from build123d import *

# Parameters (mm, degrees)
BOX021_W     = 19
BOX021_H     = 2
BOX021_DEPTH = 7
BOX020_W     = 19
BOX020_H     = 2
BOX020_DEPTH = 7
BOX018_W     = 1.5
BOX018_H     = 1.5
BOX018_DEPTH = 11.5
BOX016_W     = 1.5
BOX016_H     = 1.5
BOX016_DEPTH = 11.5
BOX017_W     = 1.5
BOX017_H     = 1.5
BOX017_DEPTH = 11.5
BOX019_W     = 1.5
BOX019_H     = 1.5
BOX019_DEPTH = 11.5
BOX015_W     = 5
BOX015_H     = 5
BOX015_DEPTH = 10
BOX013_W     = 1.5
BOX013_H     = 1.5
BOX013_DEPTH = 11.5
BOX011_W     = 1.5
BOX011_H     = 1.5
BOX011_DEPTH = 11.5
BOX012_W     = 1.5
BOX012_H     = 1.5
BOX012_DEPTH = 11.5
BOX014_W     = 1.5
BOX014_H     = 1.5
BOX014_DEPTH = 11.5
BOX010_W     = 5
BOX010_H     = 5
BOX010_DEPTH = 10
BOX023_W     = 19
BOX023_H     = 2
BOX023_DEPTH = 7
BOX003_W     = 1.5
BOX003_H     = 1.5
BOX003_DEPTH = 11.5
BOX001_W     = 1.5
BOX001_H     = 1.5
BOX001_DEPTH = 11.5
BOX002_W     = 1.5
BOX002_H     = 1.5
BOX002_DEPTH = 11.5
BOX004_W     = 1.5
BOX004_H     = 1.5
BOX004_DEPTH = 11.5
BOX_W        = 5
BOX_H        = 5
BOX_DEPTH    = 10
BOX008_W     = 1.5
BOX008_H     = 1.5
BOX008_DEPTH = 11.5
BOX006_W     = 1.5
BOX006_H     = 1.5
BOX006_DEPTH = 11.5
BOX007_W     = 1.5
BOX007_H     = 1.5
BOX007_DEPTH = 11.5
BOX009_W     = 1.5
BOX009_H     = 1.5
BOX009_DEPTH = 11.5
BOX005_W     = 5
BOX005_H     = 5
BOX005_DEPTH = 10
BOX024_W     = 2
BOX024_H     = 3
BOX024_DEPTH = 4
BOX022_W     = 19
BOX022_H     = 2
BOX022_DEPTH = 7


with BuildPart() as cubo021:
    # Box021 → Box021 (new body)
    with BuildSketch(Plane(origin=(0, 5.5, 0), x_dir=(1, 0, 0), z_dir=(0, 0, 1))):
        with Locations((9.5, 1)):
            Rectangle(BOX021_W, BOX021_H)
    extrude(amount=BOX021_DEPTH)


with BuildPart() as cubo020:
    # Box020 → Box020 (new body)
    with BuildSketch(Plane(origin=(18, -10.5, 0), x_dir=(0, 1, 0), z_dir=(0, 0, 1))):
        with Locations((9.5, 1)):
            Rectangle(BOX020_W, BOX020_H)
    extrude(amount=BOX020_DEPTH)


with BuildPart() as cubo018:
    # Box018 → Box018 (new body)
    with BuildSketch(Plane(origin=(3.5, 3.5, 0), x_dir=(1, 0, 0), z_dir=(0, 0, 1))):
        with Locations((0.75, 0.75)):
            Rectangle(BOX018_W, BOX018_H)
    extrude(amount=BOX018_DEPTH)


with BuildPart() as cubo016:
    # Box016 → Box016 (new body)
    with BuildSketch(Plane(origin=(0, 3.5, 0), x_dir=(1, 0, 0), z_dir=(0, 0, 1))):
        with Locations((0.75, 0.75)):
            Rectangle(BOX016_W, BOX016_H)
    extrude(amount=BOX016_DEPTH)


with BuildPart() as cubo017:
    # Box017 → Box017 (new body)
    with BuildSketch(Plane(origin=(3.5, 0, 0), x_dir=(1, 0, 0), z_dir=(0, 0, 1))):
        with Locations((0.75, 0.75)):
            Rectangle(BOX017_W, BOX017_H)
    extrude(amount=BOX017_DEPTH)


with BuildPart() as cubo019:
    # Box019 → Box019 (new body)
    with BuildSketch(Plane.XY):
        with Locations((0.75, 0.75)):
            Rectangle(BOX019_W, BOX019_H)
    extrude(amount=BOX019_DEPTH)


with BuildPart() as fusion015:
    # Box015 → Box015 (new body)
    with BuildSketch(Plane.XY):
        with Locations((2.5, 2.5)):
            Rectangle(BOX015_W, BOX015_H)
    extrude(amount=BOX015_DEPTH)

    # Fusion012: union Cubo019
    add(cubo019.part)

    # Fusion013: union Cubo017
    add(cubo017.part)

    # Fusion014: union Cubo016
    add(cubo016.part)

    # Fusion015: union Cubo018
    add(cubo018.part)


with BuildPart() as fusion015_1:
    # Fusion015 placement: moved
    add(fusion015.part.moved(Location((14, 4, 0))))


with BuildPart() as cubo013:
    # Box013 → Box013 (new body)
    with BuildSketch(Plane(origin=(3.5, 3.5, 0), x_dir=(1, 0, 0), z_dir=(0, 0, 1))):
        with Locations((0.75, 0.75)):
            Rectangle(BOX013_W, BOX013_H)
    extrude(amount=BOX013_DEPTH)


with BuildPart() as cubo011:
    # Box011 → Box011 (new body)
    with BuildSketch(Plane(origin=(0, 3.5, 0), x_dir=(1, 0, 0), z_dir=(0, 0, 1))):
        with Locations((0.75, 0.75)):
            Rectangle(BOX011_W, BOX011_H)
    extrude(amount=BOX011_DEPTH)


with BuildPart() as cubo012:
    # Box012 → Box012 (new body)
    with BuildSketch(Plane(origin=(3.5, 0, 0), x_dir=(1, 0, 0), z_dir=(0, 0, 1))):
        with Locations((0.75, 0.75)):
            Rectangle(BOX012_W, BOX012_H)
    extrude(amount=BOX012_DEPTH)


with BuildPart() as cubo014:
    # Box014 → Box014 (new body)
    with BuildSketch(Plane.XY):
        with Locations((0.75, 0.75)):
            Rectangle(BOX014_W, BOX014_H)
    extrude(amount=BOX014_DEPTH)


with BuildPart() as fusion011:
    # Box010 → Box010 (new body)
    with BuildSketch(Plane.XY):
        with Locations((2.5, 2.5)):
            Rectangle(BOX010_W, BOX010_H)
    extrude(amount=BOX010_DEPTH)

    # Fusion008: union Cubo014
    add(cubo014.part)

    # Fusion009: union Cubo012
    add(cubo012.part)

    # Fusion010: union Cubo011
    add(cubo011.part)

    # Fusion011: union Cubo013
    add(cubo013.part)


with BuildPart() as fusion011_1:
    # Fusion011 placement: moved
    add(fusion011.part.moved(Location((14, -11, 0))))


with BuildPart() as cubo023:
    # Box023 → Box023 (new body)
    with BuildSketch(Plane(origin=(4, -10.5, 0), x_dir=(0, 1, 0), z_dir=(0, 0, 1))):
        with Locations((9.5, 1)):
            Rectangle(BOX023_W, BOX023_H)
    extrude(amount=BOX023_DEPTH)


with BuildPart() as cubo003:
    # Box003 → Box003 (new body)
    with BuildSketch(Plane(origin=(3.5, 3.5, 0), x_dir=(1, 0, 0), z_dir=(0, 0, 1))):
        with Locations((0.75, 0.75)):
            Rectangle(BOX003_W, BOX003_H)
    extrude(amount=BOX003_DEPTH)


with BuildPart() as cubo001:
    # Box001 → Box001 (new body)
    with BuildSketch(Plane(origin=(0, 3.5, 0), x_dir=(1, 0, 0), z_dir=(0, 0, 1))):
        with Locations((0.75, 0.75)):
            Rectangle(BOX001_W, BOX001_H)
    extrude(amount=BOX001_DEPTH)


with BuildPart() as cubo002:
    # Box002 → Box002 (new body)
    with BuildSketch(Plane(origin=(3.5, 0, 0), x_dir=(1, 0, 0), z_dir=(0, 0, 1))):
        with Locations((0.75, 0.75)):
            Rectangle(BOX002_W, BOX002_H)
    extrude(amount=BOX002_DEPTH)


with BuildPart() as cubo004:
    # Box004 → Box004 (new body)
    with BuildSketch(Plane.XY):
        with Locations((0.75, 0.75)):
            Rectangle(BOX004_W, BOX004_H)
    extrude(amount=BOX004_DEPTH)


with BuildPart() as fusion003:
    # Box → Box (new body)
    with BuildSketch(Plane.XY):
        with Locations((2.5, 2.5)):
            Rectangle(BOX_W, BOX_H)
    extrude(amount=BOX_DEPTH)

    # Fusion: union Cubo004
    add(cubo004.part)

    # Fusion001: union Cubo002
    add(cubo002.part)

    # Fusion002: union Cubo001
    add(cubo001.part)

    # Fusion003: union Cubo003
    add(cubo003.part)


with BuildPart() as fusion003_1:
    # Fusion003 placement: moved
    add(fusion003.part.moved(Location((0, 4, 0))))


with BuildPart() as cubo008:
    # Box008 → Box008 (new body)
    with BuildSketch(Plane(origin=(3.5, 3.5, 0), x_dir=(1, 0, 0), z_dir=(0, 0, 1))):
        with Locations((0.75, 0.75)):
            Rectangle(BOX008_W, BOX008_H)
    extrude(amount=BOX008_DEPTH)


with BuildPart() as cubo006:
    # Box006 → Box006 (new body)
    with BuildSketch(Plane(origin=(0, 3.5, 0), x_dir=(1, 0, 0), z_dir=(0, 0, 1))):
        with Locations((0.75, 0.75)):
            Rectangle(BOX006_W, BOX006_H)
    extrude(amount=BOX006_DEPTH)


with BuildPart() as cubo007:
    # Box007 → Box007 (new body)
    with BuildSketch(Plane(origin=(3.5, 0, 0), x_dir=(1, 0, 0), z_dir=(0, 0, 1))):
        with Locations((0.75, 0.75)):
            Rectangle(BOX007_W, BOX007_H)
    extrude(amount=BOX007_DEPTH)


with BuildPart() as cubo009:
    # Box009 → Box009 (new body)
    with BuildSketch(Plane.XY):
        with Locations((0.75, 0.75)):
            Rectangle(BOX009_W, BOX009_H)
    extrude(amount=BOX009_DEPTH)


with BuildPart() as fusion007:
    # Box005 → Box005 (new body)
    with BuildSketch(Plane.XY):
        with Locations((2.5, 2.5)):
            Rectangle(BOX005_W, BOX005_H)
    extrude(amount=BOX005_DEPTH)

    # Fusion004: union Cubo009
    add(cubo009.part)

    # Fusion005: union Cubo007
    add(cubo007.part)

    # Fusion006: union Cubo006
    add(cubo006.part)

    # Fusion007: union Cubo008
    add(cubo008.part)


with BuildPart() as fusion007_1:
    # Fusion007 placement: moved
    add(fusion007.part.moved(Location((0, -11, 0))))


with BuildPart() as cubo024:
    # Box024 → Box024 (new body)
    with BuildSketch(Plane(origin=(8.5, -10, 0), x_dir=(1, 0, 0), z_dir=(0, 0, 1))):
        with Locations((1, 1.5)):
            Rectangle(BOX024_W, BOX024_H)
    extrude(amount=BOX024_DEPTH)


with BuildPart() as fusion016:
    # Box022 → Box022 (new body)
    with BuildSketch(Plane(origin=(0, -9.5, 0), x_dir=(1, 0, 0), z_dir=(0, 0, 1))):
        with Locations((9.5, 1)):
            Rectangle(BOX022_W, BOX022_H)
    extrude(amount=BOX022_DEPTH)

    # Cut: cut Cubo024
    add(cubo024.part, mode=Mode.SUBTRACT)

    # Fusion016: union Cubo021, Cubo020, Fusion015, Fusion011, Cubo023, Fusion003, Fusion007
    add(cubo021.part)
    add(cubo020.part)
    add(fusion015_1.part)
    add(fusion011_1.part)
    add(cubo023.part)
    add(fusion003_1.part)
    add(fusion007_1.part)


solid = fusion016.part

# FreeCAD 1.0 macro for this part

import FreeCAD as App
import Part
import Sketcher

doc = App.newDocument("Part")
params = doc.addObject("Spreadsheet::Sheet", "Params")
for row, (alias, value) in enumerate([
    ("sketch1_width", "19 mm"),
    ("sketch1_height", "2 mm"),
    ("pad1_length", "7 mm"),
    ("sketch2_width", "2 mm"),
    ("sketch2_height", "19 mm"),
    ("pad2_length", "7 mm"),
    ("sketch3_width", "1.5 mm"),
    ("pad3_length", "11.5 mm"),
    ("sketch4_width", "1.5 mm"),
    ("pad4_length", "11.5 mm"),
    ("sketch5_width", "1.5 mm"),
    ("pad5_length", "11.5 mm"),
    ("sketch6_width", "1.5 mm"),
    ("pad6_length", "11.5 mm"),
    ("sketch7_width", "5 mm"),
    ("pad7_length", "10 mm"),
    ("sketch8_width", "1.5 mm"),
    ("pad8_length", "11.5 mm"),
    ("sketch9_width", "1.5 mm"),
    ("pad9_length", "11.5 mm"),
    ("sketch10_width", "1.5 mm"),
    ("pad10_length", "11.5 mm"),
    ("sketch11_width", "1.5 mm"),
    ("pad11_length", "11.5 mm"),
    ("sketch12_width", "5 mm"),
    ("pad12_length", "10 mm"),
    ("sketch13_width", "2 mm"),
    ("sketch13_height", "19 mm"),
    ("pad13_length", "7 mm"),
    ("sketch14_width", "1.5 mm"),
    ("pad14_length", "11.5 mm"),
    ("sketch15_width", "1.5 mm"),
    ("pad15_length", "11.5 mm"),
    ("sketch16_width", "1.5 mm"),
    ("pad16_length", "11.5 mm"),
    ("sketch17_width", "1.5 mm"),
    ("pad17_length", "11.5 mm"),
    ("sketch18_width", "5 mm"),
    ("pad18_length", "10 mm"),
    ("sketch19_width", "1.5 mm"),
    ("pad19_length", "11.5 mm"),
    ("sketch20_width", "1.5 mm"),
    ("pad20_length", "11.5 mm"),
    ("sketch21_width", "1.5 mm"),
    ("pad21_length", "11.5 mm"),
    ("sketch22_width", "1.5 mm"),
    ("pad22_length", "11.5 mm"),
    ("sketch23_width", "5 mm"),
    ("pad23_length", "10 mm"),
    ("sketch24_width", "2 mm"),
    ("sketch24_height", "3 mm"),
    ("pad24_length", "4 mm"),
    ("sketch25_width", "19 mm"),
    ("sketch25_height", "2 mm"),
    ("pad25_length", "7 mm"),
], start=1):
    params.set(f"A{row}", alias)
    params.set(f"B{row}", "=" + value)
    params.setAlias(f"B{row}", alias)

body = doc.addObject("PartDesign::Body", "Body")

# Sketch on XY plane
sketch1 = doc.addObject("Sketcher::SketchObject", "Sketch")
body.addObject(sketch1)
sketch1.AttachmentSupport = (doc.XY_Plane, [""])
sketch1.MapMode = "FlatFace"
sketch1.addGeometry([
    Part.LineSegment(App.Vector(0, 7.5, 0), App.Vector(0, 5.5, 0)),
    Part.LineSegment(App.Vector(0, 5.5, 0), App.Vector(19, 5.5, 0)),
    Part.LineSegment(App.Vector(19, 5.5, 0), App.Vector(19, 7.5, 0)),
    Part.LineSegment(App.Vector(19, 7.5, 0), App.Vector(0, 7.5, 0)),
], False)
sketch1.addConstraint([
    Sketcher.Constraint("Coincident", 0, 2, 1, 1),
    Sketcher.Constraint("Coincident", 1, 2, 2, 1),
    Sketcher.Constraint("Coincident", 2, 2, 3, 1),
    Sketcher.Constraint("Coincident", 3, 2, 0, 1),
    Sketcher.Constraint("Vertical", 0),
    Sketcher.Constraint("Horizontal", 1),
    Sketcher.Constraint("Vertical", 2),
    Sketcher.Constraint("Horizontal", 3),
    Sketcher.Constraint("PointOnObject", 0, 2, -2),
    Sketcher.Constraint("DistanceX", 1, 1, 1, 2, 19.0),
    Sketcher.Constraint("DistanceY", 0, 2, 0, 1, 2.0),
    Sketcher.Constraint("DistanceY", -1, 1, 0, 2, 5.5),
])
sketch1.setExpression("Constraints[9]", "Params.sketch1_width")
sketch1.setExpression("Constraints[10]", "Params.sketch1_height")
pad1 = doc.addObject("PartDesign::Pad", "Pad")
body.addObject(pad1)
pad1.Profile = sketch1
pad1.setExpression("Length", "Params.pad1_length")
body2 = doc.addObject("PartDesign::Body", "Body001")

# Sketch on XY plane
sketch2 = doc.addObject("Sketcher::SketchObject", "Sketch001")
body2.addObject(sketch2)
sketch2.AttachmentSupport = (doc.getObject("XY_Plane001"), [""])
sketch2.MapMode = "FlatFace"
sketch2.addGeometry([
    Part.LineSegment(App.Vector(16, -10.5, 0), App.Vector(18, -10.5, 0)),
    Part.LineSegment(App.Vector(18, -10.5, 0), App.Vector(18, 8.5, 0)),
    Part.LineSegment(App.Vector(18, 8.5, 0), App.Vector(16, 8.5, 0)),
    Part.LineSegment(App.Vector(16, 8.5, 0), App.Vector(16, -10.5, 0)),
], False)
sketch2.addConstraint([
    Sketcher.Constraint("Coincident", 0, 2, 1, 1),
    Sketcher.Constraint("Coincident", 1, 2, 2, 1),
    Sketcher.Constraint("Coincident", 2, 2, 3, 1),
    Sketcher.Constraint("Coincident", 3, 2, 0, 1),
    Sketcher.Constraint("Horizontal", 0),
    Sketcher.Constraint("Vertical", 1),
    Sketcher.Constraint("Horizontal", 2),
    Sketcher.Constraint("Vertical", 3),
    Sketcher.Constraint("DistanceX", 0, 1, 0, 2, 2.0),
    Sketcher.Constraint("DistanceY", 1, 1, 1, 2, 19.0),
    Sketcher.Constraint("DistanceX", -1, 1, 0, 2, 18.0),
    Sketcher.Constraint("DistanceY", 0, 2, -1, 1, 10.5),
])
sketch2.setExpression("Constraints[8]", "Params.sketch2_width")
sketch2.setExpression("Constraints[9]", "Params.sketch2_height")
pad2 = doc.addObject("PartDesign::Pad", "Pad001")
body2.addObject(pad2)
pad2.Profile = sketch2
pad2.setExpression("Length", "Params.pad2_length")
body3 = doc.addObject("PartDesign::Body", "Body002")

# Sketch on XY plane
sketch3 = doc.addObject("Sketcher::SketchObject", "Sketch002")
body3.addObject(sketch3)
sketch3.AttachmentSupport = (doc.getObject("XY_Plane002"), [""])
sketch3.MapMode = "FlatFace"
sketch3.addGeometry([
    Part.LineSegment(App.Vector(3.5, 5, 0), App.Vector(3.5, 3.5, 0)),
    Part.LineSegment(App.Vector(3.5, 3.5, 0), App.Vector(5, 3.5, 0)),
    Part.LineSegment(App.Vector(5, 3.5, 0), App.Vector(5, 5, 0)),
    Part.LineSegment(App.Vector(5, 5, 0), App.Vector(3.5, 5, 0)),
], False)
sketch3.addConstraint([
    Sketcher.Constraint("Coincident", 0, 2, 1, 1),
    Sketcher.Constraint("Coincident", 1, 2, 2, 1),
    Sketcher.Constraint("Coincident", 2, 2, 3, 1),
    Sketcher.Constraint("Coincident", 3, 2, 0, 1),
    Sketcher.Constraint("Vertical", 0),
    Sketcher.Constraint("Horizontal", 1),
    Sketcher.Constraint("Vertical", 2),
    Sketcher.Constraint("Horizontal", 3),
    Sketcher.Constraint("Equal", 3, 0),
    Sketcher.Constraint("DistanceX", 1, 1, 1, 2, 1.5),
    Sketcher.Constraint("DistanceX", -1, 1, 1, 2, 5.0),
    Sketcher.Constraint("DistanceY", -1, 1, 2, 2, 5.0),
])
sketch3.setExpression("Constraints[9]", "Params.sketch3_width")
pad3 = doc.addObject("PartDesign::Pad", "Pad002")
body3.addObject(pad3)
pad3.Profile = sketch3
pad3.setExpression("Length", "Params.pad3_length")
body4 = doc.addObject("PartDesign::Body", "Body003")

# Sketch on XY plane
sketch4 = doc.addObject("Sketcher::SketchObject", "Sketch003")
body4.addObject(sketch4)
sketch4.AttachmentSupport = (doc.getObject("XY_Plane003"), [""])
sketch4.MapMode = "FlatFace"
sketch4.addGeometry([
    Part.LineSegment(App.Vector(0, 5, 0), App.Vector(0, 3.5, 0)),
    Part.LineSegment(App.Vector(0, 3.5, 0), App.Vector(1.5, 3.5, 0)),
    Part.LineSegment(App.Vector(1.5, 3.5, 0), App.Vector(1.5, 5, 0)),
    Part.LineSegment(App.Vector(1.5, 5, 0), App.Vector(0, 5, 0)),
], False)
sketch4.addConstraint([
    Sketcher.Constraint("Coincident", 0, 2, 1, 1),
    Sketcher.Constraint("Coincident", 1, 2, 2, 1),
    Sketcher.Constraint("Coincident", 2, 2, 3, 1),
    Sketcher.Constraint("Coincident", 3, 2, 0, 1),
    Sketcher.Constraint("Vertical", 0),
    Sketcher.Constraint("Horizontal", 1),
    Sketcher.Constraint("Vertical", 2),
    Sketcher.Constraint("Horizontal", 3),
    Sketcher.Constraint("PointOnObject", 0, 2, -2),
    Sketcher.Constraint("Equal", 3, 0),
    Sketcher.Constraint("DistanceX", 1, 1, 1, 2, 1.5),
    Sketcher.Constraint("DistanceY", -1, 1, 2, 2, 5.0),
])
sketch4.setExpression("Constraints[10]", "Params.sketch4_width")
pad4 = doc.addObject("PartDesign::Pad", "Pad003")
body4.addObject(pad4)
pad4.Profile = sketch4
pad4.setExpression("Length", "Params.pad4_length")
body5 = doc.addObject("PartDesign::Body", "Body004")

# Sketch on XY plane
sketch5 = doc.addObject("Sketcher::SketchObject", "Sketch004")
body5.addObject(sketch5)
sketch5.AttachmentSupport = (doc.getObject("XY_Plane004"), [""])
sketch5.MapMode = "FlatFace"
sketch5.addGeometry([
    Part.LineSegment(App.Vector(3.5, 1.5, 0), App.Vector(3.5, 0, 0)),
    Part.LineSegment(App.Vector(3.5, 0, 0), App.Vector(5, 0, 0)),
    Part.LineSegment(App.Vector(5, 0, 0), App.Vector(5, 1.5, 0)),
    Part.LineSegment(App.Vector(5, 1.5, 0), App.Vector(3.5, 1.5, 0)),
], False)
sketch5.addConstraint([
    Sketcher.Constraint("Coincident", 0, 2, 1, 1),
    Sketcher.Constraint("Coincident", 1, 2, 2, 1),
    Sketcher.Constraint("Coincident", 2, 2, 3, 1),
    Sketcher.Constraint("Coincident", 3, 2, 0, 1),
    Sketcher.Constraint("Vertical", 0),
    Sketcher.Constraint("Horizontal", 1),
    Sketcher.Constraint("Vertical", 2),
    Sketcher.Constraint("Horizontal", 3),
    Sketcher.Constraint("PointOnObject", 0, 2, -1),
    Sketcher.Constraint("Equal", 3, 0),
    Sketcher.Constraint("DistanceX", 1, 1, 1, 2, 1.5),
    Sketcher.Constraint("DistanceX", -1, 1, 1, 2, 5.0),
])
sketch5.setExpression("Constraints[10]", "Params.sketch5_width")
pad5 = doc.addObject("PartDesign::Pad", "Pad004")
body5.addObject(pad5)
pad5.Profile = sketch5
pad5.setExpression("Length", "Params.pad5_length")
body6 = doc.addObject("PartDesign::Body", "Body005")

# Sketch on XY plane
sketch6 = doc.addObject("Sketcher::SketchObject", "Sketch005")
body6.addObject(sketch6)
sketch6.AttachmentSupport = (doc.getObject("XY_Plane005"), [""])
sketch6.MapMode = "FlatFace"
sketch6.addGeometry([
    Part.LineSegment(App.Vector(0, 1.5, 0), App.Vector(0, 0, 0)),
    Part.LineSegment(App.Vector(0, 0, 0), App.Vector(1.5, 0, 0)),
    Part.LineSegment(App.Vector(1.5, 0, 0), App.Vector(1.5, 1.5, 0)),
    Part.LineSegment(App.Vector(1.5, 1.5, 0), App.Vector(0, 1.5, 0)),
], False)
sketch6.addConstraint([
    Sketcher.Constraint("Coincident", 0, 2, 1, 1),
    Sketcher.Constraint("Coincident", 1, 2, 2, 1),
    Sketcher.Constraint("Coincident", 2, 2, 3, 1),
    Sketcher.Constraint("Coincident", 3, 2, 0, 1),
    Sketcher.Constraint("Vertical", 0),
    Sketcher.Constraint("Horizontal", 1),
    Sketcher.Constraint("Vertical", 2),
    Sketcher.Constraint("Horizontal", 3),
    Sketcher.Constraint("Coincident", 0, 2, -1, 1),
    Sketcher.Constraint("Equal", 3, 0),
    Sketcher.Constraint("DistanceX", 1, 1, 1, 2, 1.5),
])
sketch6.setExpression("Constraints[10]", "Params.sketch6_width")
pad6 = doc.addObject("PartDesign::Pad", "Pad005")
body6.addObject(pad6)
pad6.Profile = sketch6
pad6.setExpression("Length", "Params.pad6_length")
body7 = doc.addObject("PartDesign::Body", "Body006")

# Sketch on XY plane
sketch7 = doc.addObject("Sketcher::SketchObject", "Sketch006")
body7.addObject(sketch7)
sketch7.AttachmentSupport = (doc.getObject("XY_Plane006"), [""])
sketch7.MapMode = "FlatFace"
sketch7.addGeometry([
    Part.LineSegment(App.Vector(0, 5, 0), App.Vector(0, 0, 0)),
    Part.LineSegment(App.Vector(0, 0, 0), App.Vector(5, 0, 0)),
    Part.LineSegment(App.Vector(5, 0, 0), App.Vector(5, 5, 0)),
    Part.LineSegment(App.Vector(5, 5, 0), App.Vector(0, 5, 0)),
], False)
sketch7.addConstraint([
    Sketcher.Constraint("Coincident", 0, 2, 1, 1),
    Sketcher.Constraint("Coincident", 1, 2, 2, 1),
    Sketcher.Constraint("Coincident", 2, 2, 3, 1),
    Sketcher.Constraint("Coincident", 3, 2, 0, 1),
    Sketcher.Constraint("Vertical", 0),
    Sketcher.Constraint("Horizontal", 1),
    Sketcher.Constraint("Vertical", 2),
    Sketcher.Constraint("Horizontal", 3),
    Sketcher.Constraint("Coincident", 0, 2, -1, 1),
    Sketcher.Constraint("Equal", 3, 0),
    Sketcher.Constraint("DistanceX", 1, 1, 1, 2, 5.0),
])
sketch7.setExpression("Constraints[10]", "Params.sketch7_width")
pad7 = doc.addObject("PartDesign::Pad", "Pad006")
body7.addObject(pad7)
pad7.Profile = sketch7
pad7.setExpression("Length", "Params.pad7_length")
doc.recompute()

boolean = doc.addObject("PartDesign::Boolean", "Boolean")
body7.addObject(boolean)
boolean.Type = "Fuse"
boolean.addObjects([body6])
doc.recompute()

boolean2 = doc.addObject("PartDesign::Boolean", "Boolean001")
body7.addObject(boolean2)
boolean2.Type = "Fuse"
boolean2.addObjects([body5])
doc.recompute()

boolean3 = doc.addObject("PartDesign::Boolean", "Boolean002")
body7.addObject(boolean3)
boolean3.Type = "Fuse"
boolean3.addObjects([body4])
doc.recompute()

boolean4 = doc.addObject("PartDesign::Boolean", "Boolean003")
body7.addObject(boolean4)
boolean4.Type = "Fuse"
boolean4.addObjects([body3])
body8 = doc.addObject("PartDesign::Body", "Body007")
doc.recompute()

body7.Placement = App.Placement(App.Vector(14, 4, 0), App.Rotation(App.Vector(0, 0, 1), 0))
boolean5 = doc.addObject("PartDesign::Boolean", "Boolean004")
body8.addObject(boolean5)
boolean5.Type = "Fuse"
boolean5.addObjects([body7])
body9 = doc.addObject("PartDesign::Body", "Body008")

# Sketch on XY plane
sketch8 = doc.addObject("Sketcher::SketchObject", "Sketch007")
body9.addObject(sketch8)
sketch8.AttachmentSupport = (doc.getObject("XY_Plane008"), [""])
sketch8.MapMode = "FlatFace"
sketch8.addGeometry([
    Part.LineSegment(App.Vector(3.5, 5, 0), App.Vector(3.5, 3.5, 0)),
    Part.LineSegment(App.Vector(3.5, 3.5, 0), App.Vector(5, 3.5, 0)),
    Part.LineSegment(App.Vector(5, 3.5, 0), App.Vector(5, 5, 0)),
    Part.LineSegment(App.Vector(5, 5, 0), App.Vector(3.5, 5, 0)),
], False)
sketch8.addConstraint([
    Sketcher.Constraint("Coincident", 0, 2, 1, 1),
    Sketcher.Constraint("Coincident", 1, 2, 2, 1),
    Sketcher.Constraint("Coincident", 2, 2, 3, 1),
    Sketcher.Constraint("Coincident", 3, 2, 0, 1),
    Sketcher.Constraint("Vertical", 0),
    Sketcher.Constraint("Horizontal", 1),
    Sketcher.Constraint("Vertical", 2),
    Sketcher.Constraint("Horizontal", 3),
    Sketcher.Constraint("Equal", 3, 0),
    Sketcher.Constraint("DistanceX", 1, 1, 1, 2, 1.5),
    Sketcher.Constraint("DistanceX", -1, 1, 1, 2, 5.0),
    Sketcher.Constraint("DistanceY", -1, 1, 2, 2, 5.0),
])
sketch8.setExpression("Constraints[9]", "Params.sketch8_width")
pad8 = doc.addObject("PartDesign::Pad", "Pad007")
body9.addObject(pad8)
pad8.Profile = sketch8
pad8.setExpression("Length", "Params.pad8_length")
body10 = doc.addObject("PartDesign::Body", "Body009")

# Sketch on XY plane
sketch9 = doc.addObject("Sketcher::SketchObject", "Sketch008")
body10.addObject(sketch9)
sketch9.AttachmentSupport = (doc.getObject("XY_Plane009"), [""])
sketch9.MapMode = "FlatFace"
sketch9.addGeometry([
    Part.LineSegment(App.Vector(0, 5, 0), App.Vector(0, 3.5, 0)),
    Part.LineSegment(App.Vector(0, 3.5, 0), App.Vector(1.5, 3.5, 0)),
    Part.LineSegment(App.Vector(1.5, 3.5, 0), App.Vector(1.5, 5, 0)),
    Part.LineSegment(App.Vector(1.5, 5, 0), App.Vector(0, 5, 0)),
], False)
sketch9.addConstraint([
    Sketcher.Constraint("Coincident", 0, 2, 1, 1),
    Sketcher.Constraint("Coincident", 1, 2, 2, 1),
    Sketcher.Constraint("Coincident", 2, 2, 3, 1),
    Sketcher.Constraint("Coincident", 3, 2, 0, 1),
    Sketcher.Constraint("Vertical", 0),
    Sketcher.Constraint("Horizontal", 1),
    Sketcher.Constraint("Vertical", 2),
    Sketcher.Constraint("Horizontal", 3),
    Sketcher.Constraint("PointOnObject", 0, 2, -2),
    Sketcher.Constraint("Equal", 3, 0),
    Sketcher.Constraint("DistanceX", 1, 1, 1, 2, 1.5),
    Sketcher.Constraint("DistanceY", -1, 1, 2, 2, 5.0),
])
sketch9.setExpression("Constraints[10]", "Params.sketch9_width")
pad9 = doc.addObject("PartDesign::Pad", "Pad008")
body10.addObject(pad9)
pad9.Profile = sketch9
pad9.setExpression("Length", "Params.pad9_length")
body11 = doc.addObject("PartDesign::Body", "Body010")

# Sketch on XY plane
sketch10 = doc.addObject("Sketcher::SketchObject", "Sketch009")
body11.addObject(sketch10)
sketch10.AttachmentSupport = (doc.getObject("XY_Plane010"), [""])
sketch10.MapMode = "FlatFace"
sketch10.addGeometry([
    Part.LineSegment(App.Vector(3.5, 1.5, 0), App.Vector(3.5, 0, 0)),
    Part.LineSegment(App.Vector(3.5, 0, 0), App.Vector(5, 0, 0)),
    Part.LineSegment(App.Vector(5, 0, 0), App.Vector(5, 1.5, 0)),
    Part.LineSegment(App.Vector(5, 1.5, 0), App.Vector(3.5, 1.5, 0)),
], False)
sketch10.addConstraint([
    Sketcher.Constraint("Coincident", 0, 2, 1, 1),
    Sketcher.Constraint("Coincident", 1, 2, 2, 1),
    Sketcher.Constraint("Coincident", 2, 2, 3, 1),
    Sketcher.Constraint("Coincident", 3, 2, 0, 1),
    Sketcher.Constraint("Vertical", 0),
    Sketcher.Constraint("Horizontal", 1),
    Sketcher.Constraint("Vertical", 2),
    Sketcher.Constraint("Horizontal", 3),
    Sketcher.Constraint("PointOnObject", 0, 2, -1),
    Sketcher.Constraint("Equal", 3, 0),
    Sketcher.Constraint("DistanceX", 1, 1, 1, 2, 1.5),
    Sketcher.Constraint("DistanceX", -1, 1, 1, 2, 5.0),
])
sketch10.setExpression("Constraints[10]", "Params.sketch10_width")
pad10 = doc.addObject("PartDesign::Pad", "Pad009")
body11.addObject(pad10)
pad10.Profile = sketch10
pad10.setExpression("Length", "Params.pad10_length")
body12 = doc.addObject("PartDesign::Body", "Body011")

# Sketch on XY plane
sketch11 = doc.addObject("Sketcher::SketchObject", "Sketch010")
body12.addObject(sketch11)
sketch11.AttachmentSupport = (doc.getObject("XY_Plane011"), [""])
sketch11.MapMode = "FlatFace"
sketch11.addGeometry([
    Part.LineSegment(App.Vector(0, 1.5, 0), App.Vector(0, 0, 0)),
    Part.LineSegment(App.Vector(0, 0, 0), App.Vector(1.5, 0, 0)),
    Part.LineSegment(App.Vector(1.5, 0, 0), App.Vector(1.5, 1.5, 0)),
    Part.LineSegment(App.Vector(1.5, 1.5, 0), App.Vector(0, 1.5, 0)),
], False)
sketch11.addConstraint([
    Sketcher.Constraint("Coincident", 0, 2, 1, 1),
    Sketcher.Constraint("Coincident", 1, 2, 2, 1),
    Sketcher.Constraint("Coincident", 2, 2, 3, 1),
    Sketcher.Constraint("Coincident", 3, 2, 0, 1),
    Sketcher.Constraint("Vertical", 0),
    Sketcher.Constraint("Horizontal", 1),
    Sketcher.Constraint("Vertical", 2),
    Sketcher.Constraint("Horizontal", 3),
    Sketcher.Constraint("Coincident", 0, 2, -1, 1),
    Sketcher.Constraint("Equal", 3, 0),
    Sketcher.Constraint("DistanceX", 1, 1, 1, 2, 1.5),
])
sketch11.setExpression("Constraints[10]", "Params.sketch11_width")
pad11 = doc.addObject("PartDesign::Pad", "Pad010")
body12.addObject(pad11)
pad11.Profile = sketch11
pad11.setExpression("Length", "Params.pad11_length")
body13 = doc.addObject("PartDesign::Body", "Body012")

# Sketch on XY plane
sketch12 = doc.addObject("Sketcher::SketchObject", "Sketch011")
body13.addObject(sketch12)
sketch12.AttachmentSupport = (doc.getObject("XY_Plane012"), [""])
sketch12.MapMode = "FlatFace"
sketch12.addGeometry([
    Part.LineSegment(App.Vector(0, 5, 0), App.Vector(0, 0, 0)),
    Part.LineSegment(App.Vector(0, 0, 0), App.Vector(5, 0, 0)),
    Part.LineSegment(App.Vector(5, 0, 0), App.Vector(5, 5, 0)),
    Part.LineSegment(App.Vector(5, 5, 0), App.Vector(0, 5, 0)),
], False)
sketch12.addConstraint([
    Sketcher.Constraint("Coincident", 0, 2, 1, 1),
    Sketcher.Constraint("Coincident", 1, 2, 2, 1),
    Sketcher.Constraint("Coincident", 2, 2, 3, 1),
    Sketcher.Constraint("Coincident", 3, 2, 0, 1),
    Sketcher.Constraint("Vertical", 0),
    Sketcher.Constraint("Horizontal", 1),
    Sketcher.Constraint("Vertical", 2),
    Sketcher.Constraint("Horizontal", 3),
    Sketcher.Constraint("Coincident", 0, 2, -1, 1),
    Sketcher.Constraint("Equal", 3, 0),
    Sketcher.Constraint("DistanceX", 1, 1, 1, 2, 5.0),
])
sketch12.setExpression("Constraints[10]", "Params.sketch12_width")
pad12 = doc.addObject("PartDesign::Pad", "Pad011")
body13.addObject(pad12)
pad12.Profile = sketch12
pad12.setExpression("Length", "Params.pad12_length")
doc.recompute()

boolean6 = doc.addObject("PartDesign::Boolean", "Boolean005")
body13.addObject(boolean6)
boolean6.Type = "Fuse"
boolean6.addObjects([body12])
doc.recompute()

boolean7 = doc.addObject("PartDesign::Boolean", "Boolean006")
body13.addObject(boolean7)
boolean7.Type = "Fuse"
boolean7.addObjects([body11])
doc.recompute()

boolean8 = doc.addObject("PartDesign::Boolean", "Boolean007")
body13.addObject(boolean8)
boolean8.Type = "Fuse"
boolean8.addObjects([body10])
doc.recompute()

boolean9 = doc.addObject("PartDesign::Boolean", "Boolean008")
body13.addObject(boolean9)
boolean9.Type = "Fuse"
boolean9.addObjects([body9])
body14 = doc.addObject("PartDesign::Body", "Body013")
doc.recompute()

body13.Placement = App.Placement(App.Vector(14, -11, 0), App.Rotation(App.Vector(0, 0, 1), 0))
boolean10 = doc.addObject("PartDesign::Boolean", "Boolean009")
body14.addObject(boolean10)
boolean10.Type = "Fuse"
boolean10.addObjects([body13])
body15 = doc.addObject("PartDesign::Body", "Body014")

# Sketch on XY plane
sketch13 = doc.addObject("Sketcher::SketchObject", "Sketch012")
body15.addObject(sketch13)
sketch13.AttachmentSupport = (doc.getObject("XY_Plane014"), [""])
sketch13.MapMode = "FlatFace"
sketch13.addGeometry([
    Part.LineSegment(App.Vector(2, -10.5, 0), App.Vector(4, -10.5, 0)),
    Part.LineSegment(App.Vector(4, -10.5, 0), App.Vector(4, 8.5, 0)),
    Part.LineSegment(App.Vector(4, 8.5, 0), App.Vector(2, 8.5, 0)),
    Part.LineSegment(App.Vector(2, 8.5, 0), App.Vector(2, -10.5, 0)),
], False)
sketch13.addConstraint([
    Sketcher.Constraint("Coincident", 0, 2, 1, 1),
    Sketcher.Constraint("Coincident", 1, 2, 2, 1),
    Sketcher.Constraint("Coincident", 2, 2, 3, 1),
    Sketcher.Constraint("Coincident", 3, 2, 0, 1),
    Sketcher.Constraint("Horizontal", 0),
    Sketcher.Constraint("Vertical", 1),
    Sketcher.Constraint("Horizontal", 2),
    Sketcher.Constraint("Vertical", 3),
    Sketcher.Constraint("DistanceX", 0, 1, 0, 2, 2.0),
    Sketcher.Constraint("DistanceY", 1, 1, 1, 2, 19.0),
    Sketcher.Constraint("DistanceX", -1, 1, 0, 2, 4.0),
    Sketcher.Constraint("DistanceY", 0, 2, -1, 1, 10.5),
])
sketch13.setExpression("Constraints[8]", "Params.sketch13_width")
sketch13.setExpression("Constraints[9]", "Params.sketch13_height")
pad13 = doc.addObject("PartDesign::Pad", "Pad012")
body15.addObject(pad13)
pad13.Profile = sketch13
pad13.setExpression("Length", "Params.pad13_length")
body16 = doc.addObject("PartDesign::Body", "Body015")

# Sketch on XY plane
sketch14 = doc.addObject("Sketcher::SketchObject", "Sketch013")
body16.addObject(sketch14)
sketch14.AttachmentSupport = (doc.getObject("XY_Plane015"), [""])
sketch14.MapMode = "FlatFace"
sketch14.addGeometry([
    Part.LineSegment(App.Vector(3.5, 5, 0), App.Vector(3.5, 3.5, 0)),
    Part.LineSegment(App.Vector(3.5, 3.5, 0), App.Vector(5, 3.5, 0)),
    Part.LineSegment(App.Vector(5, 3.5, 0), App.Vector(5, 5, 0)),
    Part.LineSegment(App.Vector(5, 5, 0), App.Vector(3.5, 5, 0)),
], False)
sketch14.addConstraint([
    Sketcher.Constraint("Coincident", 0, 2, 1, 1),
    Sketcher.Constraint("Coincident", 1, 2, 2, 1),
    Sketcher.Constraint("Coincident", 2, 2, 3, 1),
    Sketcher.Constraint("Coincident", 3, 2, 0, 1),
    Sketcher.Constraint("Vertical", 0),
    Sketcher.Constraint("Horizontal", 1),
    Sketcher.Constraint("Vertical", 2),
    Sketcher.Constraint("Horizontal", 3),
    Sketcher.Constraint("Equal", 3, 0),
    Sketcher.Constraint("DistanceX", 1, 1, 1, 2, 1.5),
    Sketcher.Constraint("DistanceX", -1, 1, 1, 2, 5.0),
    Sketcher.Constraint("DistanceY", -1, 1, 2, 2, 5.0),
])
sketch14.setExpression("Constraints[9]", "Params.sketch14_width")
pad14 = doc.addObject("PartDesign::Pad", "Pad013")
body16.addObject(pad14)
pad14.Profile = sketch14
pad14.setExpression("Length", "Params.pad14_length")
body17 = doc.addObject("PartDesign::Body", "Body016")

# Sketch on XY plane
sketch15 = doc.addObject("Sketcher::SketchObject", "Sketch014")
body17.addObject(sketch15)
sketch15.AttachmentSupport = (doc.getObject("XY_Plane016"), [""])
sketch15.MapMode = "FlatFace"
sketch15.addGeometry([
    Part.LineSegment(App.Vector(0, 5, 0), App.Vector(0, 3.5, 0)),
    Part.LineSegment(App.Vector(0, 3.5, 0), App.Vector(1.5, 3.5, 0)),
    Part.LineSegment(App.Vector(1.5, 3.5, 0), App.Vector(1.5, 5, 0)),
    Part.LineSegment(App.Vector(1.5, 5, 0), App.Vector(0, 5, 0)),
], False)
sketch15.addConstraint([
    Sketcher.Constraint("Coincident", 0, 2, 1, 1),
    Sketcher.Constraint("Coincident", 1, 2, 2, 1),
    Sketcher.Constraint("Coincident", 2, 2, 3, 1),
    Sketcher.Constraint("Coincident", 3, 2, 0, 1),
    Sketcher.Constraint("Vertical", 0),
    Sketcher.Constraint("Horizontal", 1),
    Sketcher.Constraint("Vertical", 2),
    Sketcher.Constraint("Horizontal", 3),
    Sketcher.Constraint("PointOnObject", 0, 2, -2),
    Sketcher.Constraint("Equal", 3, 0),
    Sketcher.Constraint("DistanceX", 1, 1, 1, 2, 1.5),
    Sketcher.Constraint("DistanceY", -1, 1, 2, 2, 5.0),
])
sketch15.setExpression("Constraints[10]", "Params.sketch15_width")
pad15 = doc.addObject("PartDesign::Pad", "Pad014")
body17.addObject(pad15)
pad15.Profile = sketch15
pad15.setExpression("Length", "Params.pad15_length")
body18 = doc.addObject("PartDesign::Body", "Body017")

# Sketch on XY plane
sketch16 = doc.addObject("Sketcher::SketchObject", "Sketch015")
body18.addObject(sketch16)
sketch16.AttachmentSupport = (doc.getObject("XY_Plane017"), [""])
sketch16.MapMode = "FlatFace"
sketch16.addGeometry([
    Part.LineSegment(App.Vector(3.5, 1.5, 0), App.Vector(3.5, 0, 0)),
    Part.LineSegment(App.Vector(3.5, 0, 0), App.Vector(5, 0, 0)),
    Part.LineSegment(App.Vector(5, 0, 0), App.Vector(5, 1.5, 0)),
    Part.LineSegment(App.Vector(5, 1.5, 0), App.Vector(3.5, 1.5, 0)),
], False)
sketch16.addConstraint([
    Sketcher.Constraint("Coincident", 0, 2, 1, 1),
    Sketcher.Constraint("Coincident", 1, 2, 2, 1),
    Sketcher.Constraint("Coincident", 2, 2, 3, 1),
    Sketcher.Constraint("Coincident", 3, 2, 0, 1),
    Sketcher.Constraint("Vertical", 0),
    Sketcher.Constraint("Horizontal", 1),
    Sketcher.Constraint("Vertical", 2),
    Sketcher.Constraint("Horizontal", 3),
    Sketcher.Constraint("PointOnObject", 0, 2, -1),
    Sketcher.Constraint("Equal", 3, 0),
    Sketcher.Constraint("DistanceX", 1, 1, 1, 2, 1.5),
    Sketcher.Constraint("DistanceX", -1, 1, 1, 2, 5.0),
])
sketch16.setExpression("Constraints[10]", "Params.sketch16_width")
pad16 = doc.addObject("PartDesign::Pad", "Pad015")
body18.addObject(pad16)
pad16.Profile = sketch16
pad16.setExpression("Length", "Params.pad16_length")
body19 = doc.addObject("PartDesign::Body", "Body018")

# Sketch on XY plane
sketch17 = doc.addObject("Sketcher::SketchObject", "Sketch016")
body19.addObject(sketch17)
sketch17.AttachmentSupport = (doc.getObject("XY_Plane018"), [""])
sketch17.MapMode = "FlatFace"
sketch17.addGeometry([
    Part.LineSegment(App.Vector(0, 1.5, 0), App.Vector(0, 0, 0)),
    Part.LineSegment(App.Vector(0, 0, 0), App.Vector(1.5, 0, 0)),
    Part.LineSegment(App.Vector(1.5, 0, 0), App.Vector(1.5, 1.5, 0)),
    Part.LineSegment(App.Vector(1.5, 1.5, 0), App.Vector(0, 1.5, 0)),
], False)
sketch17.addConstraint([
    Sketcher.Constraint("Coincident", 0, 2, 1, 1),
    Sketcher.Constraint("Coincident", 1, 2, 2, 1),
    Sketcher.Constraint("Coincident", 2, 2, 3, 1),
    Sketcher.Constraint("Coincident", 3, 2, 0, 1),
    Sketcher.Constraint("Vertical", 0),
    Sketcher.Constraint("Horizontal", 1),
    Sketcher.Constraint("Vertical", 2),
    Sketcher.Constraint("Horizontal", 3),
    Sketcher.Constraint("Coincident", 0, 2, -1, 1),
    Sketcher.Constraint("Equal", 3, 0),
    Sketcher.Constraint("DistanceX", 1, 1, 1, 2, 1.5),
])
sketch17.setExpression("Constraints[10]", "Params.sketch17_width")
pad17 = doc.addObject("PartDesign::Pad", "Pad016")
body19.addObject(pad17)
pad17.Profile = sketch17
pad17.setExpression("Length", "Params.pad17_length")
body20 = doc.addObject("PartDesign::Body", "Body019")

# Sketch on XY plane
sketch18 = doc.addObject("Sketcher::SketchObject", "Sketch017")
body20.addObject(sketch18)
sketch18.AttachmentSupport = (doc.getObject("XY_Plane019"), [""])
sketch18.MapMode = "FlatFace"
sketch18.addGeometry([
    Part.LineSegment(App.Vector(0, 5, 0), App.Vector(0, 0, 0)),
    Part.LineSegment(App.Vector(0, 0, 0), App.Vector(5, 0, 0)),
    Part.LineSegment(App.Vector(5, 0, 0), App.Vector(5, 5, 0)),
    Part.LineSegment(App.Vector(5, 5, 0), App.Vector(0, 5, 0)),
], False)
sketch18.addConstraint([
    Sketcher.Constraint("Coincident", 0, 2, 1, 1),
    Sketcher.Constraint("Coincident", 1, 2, 2, 1),
    Sketcher.Constraint("Coincident", 2, 2, 3, 1),
    Sketcher.Constraint("Coincident", 3, 2, 0, 1),
    Sketcher.Constraint("Vertical", 0),
    Sketcher.Constraint("Horizontal", 1),
    Sketcher.Constraint("Vertical", 2),
    Sketcher.Constraint("Horizontal", 3),
    Sketcher.Constraint("Coincident", 0, 2, -1, 1),
    Sketcher.Constraint("Equal", 3, 0),
    Sketcher.Constraint("DistanceX", 1, 1, 1, 2, 5.0),
])
sketch18.setExpression("Constraints[10]", "Params.sketch18_width")
pad18 = doc.addObject("PartDesign::Pad", "Pad017")
body20.addObject(pad18)
pad18.Profile = sketch18
pad18.setExpression("Length", "Params.pad18_length")
doc.recompute()

boolean11 = doc.addObject("PartDesign::Boolean", "Boolean010")
body20.addObject(boolean11)
boolean11.Type = "Fuse"
boolean11.addObjects([body19])
doc.recompute()

boolean12 = doc.addObject("PartDesign::Boolean", "Boolean011")
body20.addObject(boolean12)
boolean12.Type = "Fuse"
boolean12.addObjects([body18])
doc.recompute()

boolean13 = doc.addObject("PartDesign::Boolean", "Boolean012")
body20.addObject(boolean13)
boolean13.Type = "Fuse"
boolean13.addObjects([body17])
doc.recompute()

boolean14 = doc.addObject("PartDesign::Boolean", "Boolean013")
body20.addObject(boolean14)
boolean14.Type = "Fuse"
boolean14.addObjects([body16])
body21 = doc.addObject("PartDesign::Body", "Body020")
doc.recompute()

body20.Placement = App.Placement(App.Vector(0, 4, 0), App.Rotation(App.Vector(0, 0, 1), 0))
boolean15 = doc.addObject("PartDesign::Boolean", "Boolean014")
body21.addObject(boolean15)
boolean15.Type = "Fuse"
boolean15.addObjects([body20])
body22 = doc.addObject("PartDesign::Body", "Body021")

# Sketch on XY plane
sketch19 = doc.addObject("Sketcher::SketchObject", "Sketch018")
body22.addObject(sketch19)
sketch19.AttachmentSupport = (doc.getObject("XY_Plane021"), [""])
sketch19.MapMode = "FlatFace"
sketch19.addGeometry([
    Part.LineSegment(App.Vector(3.5, 5, 0), App.Vector(3.5, 3.5, 0)),
    Part.LineSegment(App.Vector(3.5, 3.5, 0), App.Vector(5, 3.5, 0)),
    Part.LineSegment(App.Vector(5, 3.5, 0), App.Vector(5, 5, 0)),
    Part.LineSegment(App.Vector(5, 5, 0), App.Vector(3.5, 5, 0)),
], False)
sketch19.addConstraint([
    Sketcher.Constraint("Coincident", 0, 2, 1, 1),
    Sketcher.Constraint("Coincident", 1, 2, 2, 1),
    Sketcher.Constraint("Coincident", 2, 2, 3, 1),
    Sketcher.Constraint("Coincident", 3, 2, 0, 1),
    Sketcher.Constraint("Vertical", 0),
    Sketcher.Constraint("Horizontal", 1),
    Sketcher.Constraint("Vertical", 2),
    Sketcher.Constraint("Horizontal", 3),
    Sketcher.Constraint("Equal", 3, 0),
    Sketcher.Constraint("DistanceX", 1, 1, 1, 2, 1.5),
    Sketcher.Constraint("DistanceX", -1, 1, 1, 2, 5.0),
    Sketcher.Constraint("DistanceY", -1, 1, 2, 2, 5.0),
])
sketch19.setExpression("Constraints[9]", "Params.sketch19_width")
pad19 = doc.addObject("PartDesign::Pad", "Pad018")
body22.addObject(pad19)
pad19.Profile = sketch19
pad19.setExpression("Length", "Params.pad19_length")
body23 = doc.addObject("PartDesign::Body", "Body022")

# Sketch on XY plane
sketch20 = doc.addObject("Sketcher::SketchObject", "Sketch019")
body23.addObject(sketch20)
sketch20.AttachmentSupport = (doc.getObject("XY_Plane022"), [""])
sketch20.MapMode = "FlatFace"
sketch20.addGeometry([
    Part.LineSegment(App.Vector(0, 5, 0), App.Vector(0, 3.5, 0)),
    Part.LineSegment(App.Vector(0, 3.5, 0), App.Vector(1.5, 3.5, 0)),
    Part.LineSegment(App.Vector(1.5, 3.5, 0), App.Vector(1.5, 5, 0)),
    Part.LineSegment(App.Vector(1.5, 5, 0), App.Vector(0, 5, 0)),
], False)
sketch20.addConstraint([
    Sketcher.Constraint("Coincident", 0, 2, 1, 1),
    Sketcher.Constraint("Coincident", 1, 2, 2, 1),
    Sketcher.Constraint("Coincident", 2, 2, 3, 1),
    Sketcher.Constraint("Coincident", 3, 2, 0, 1),
    Sketcher.Constraint("Vertical", 0),
    Sketcher.Constraint("Horizontal", 1),
    Sketcher.Constraint("Vertical", 2),
    Sketcher.Constraint("Horizontal", 3),
    Sketcher.Constraint("PointOnObject", 0, 2, -2),
    Sketcher.Constraint("Equal", 3, 0),
    Sketcher.Constraint("DistanceX", 1, 1, 1, 2, 1.5),
    Sketcher.Constraint("DistanceY", -1, 1, 2, 2, 5.0),
])
sketch20.setExpression("Constraints[10]", "Params.sketch20_width")
pad20 = doc.addObject("PartDesign::Pad", "Pad019")
body23.addObject(pad20)
pad20.Profile = sketch20
pad20.setExpression("Length", "Params.pad20_length")
body24 = doc.addObject("PartDesign::Body", "Body023")

# Sketch on XY plane
sketch21 = doc.addObject("Sketcher::SketchObject", "Sketch020")
body24.addObject(sketch21)
sketch21.AttachmentSupport = (doc.getObject("XY_Plane023"), [""])
sketch21.MapMode = "FlatFace"
sketch21.addGeometry([
    Part.LineSegment(App.Vector(3.5, 1.5, 0), App.Vector(3.5, 0, 0)),
    Part.LineSegment(App.Vector(3.5, 0, 0), App.Vector(5, 0, 0)),
    Part.LineSegment(App.Vector(5, 0, 0), App.Vector(5, 1.5, 0)),
    Part.LineSegment(App.Vector(5, 1.5, 0), App.Vector(3.5, 1.5, 0)),
], False)
sketch21.addConstraint([
    Sketcher.Constraint("Coincident", 0, 2, 1, 1),
    Sketcher.Constraint("Coincident", 1, 2, 2, 1),
    Sketcher.Constraint("Coincident", 2, 2, 3, 1),
    Sketcher.Constraint("Coincident", 3, 2, 0, 1),
    Sketcher.Constraint("Vertical", 0),
    Sketcher.Constraint("Horizontal", 1),
    Sketcher.Constraint("Vertical", 2),
    Sketcher.Constraint("Horizontal", 3),
    Sketcher.Constraint("PointOnObject", 0, 2, -1),
    Sketcher.Constraint("Equal", 3, 0),
    Sketcher.Constraint("DistanceX", 1, 1, 1, 2, 1.5),
    Sketcher.Constraint("DistanceX", -1, 1, 1, 2, 5.0),
])
sketch21.setExpression("Constraints[10]", "Params.sketch21_width")
pad21 = doc.addObject("PartDesign::Pad", "Pad020")
body24.addObject(pad21)
pad21.Profile = sketch21
pad21.setExpression("Length", "Params.pad21_length")
body25 = doc.addObject("PartDesign::Body", "Body024")

# Sketch on XY plane
sketch22 = doc.addObject("Sketcher::SketchObject", "Sketch021")
body25.addObject(sketch22)
sketch22.AttachmentSupport = (doc.getObject("XY_Plane024"), [""])
sketch22.MapMode = "FlatFace"
sketch22.addGeometry([
    Part.LineSegment(App.Vector(0, 1.5, 0), App.Vector(0, 0, 0)),
    Part.LineSegment(App.Vector(0, 0, 0), App.Vector(1.5, 0, 0)),
    Part.LineSegment(App.Vector(1.5, 0, 0), App.Vector(1.5, 1.5, 0)),
    Part.LineSegment(App.Vector(1.5, 1.5, 0), App.Vector(0, 1.5, 0)),
], False)
sketch22.addConstraint([
    Sketcher.Constraint("Coincident", 0, 2, 1, 1),
    Sketcher.Constraint("Coincident", 1, 2, 2, 1),
    Sketcher.Constraint("Coincident", 2, 2, 3, 1),
    Sketcher.Constraint("Coincident", 3, 2, 0, 1),
    Sketcher.Constraint("Vertical", 0),
    Sketcher.Constraint("Horizontal", 1),
    Sketcher.Constraint("Vertical", 2),
    Sketcher.Constraint("Horizontal", 3),
    Sketcher.Constraint("Coincident", 0, 2, -1, 1),
    Sketcher.Constraint("Equal", 3, 0),
    Sketcher.Constraint("DistanceX", 1, 1, 1, 2, 1.5),
])
sketch22.setExpression("Constraints[10]", "Params.sketch22_width")
pad22 = doc.addObject("PartDesign::Pad", "Pad021")
body25.addObject(pad22)
pad22.Profile = sketch22
pad22.setExpression("Length", "Params.pad22_length")
body26 = doc.addObject("PartDesign::Body", "Body025")

# Sketch on XY plane
sketch23 = doc.addObject("Sketcher::SketchObject", "Sketch022")
body26.addObject(sketch23)
sketch23.AttachmentSupport = (doc.getObject("XY_Plane025"), [""])
sketch23.MapMode = "FlatFace"
sketch23.addGeometry([
    Part.LineSegment(App.Vector(0, 5, 0), App.Vector(0, 0, 0)),
    Part.LineSegment(App.Vector(0, 0, 0), App.Vector(5, 0, 0)),
    Part.LineSegment(App.Vector(5, 0, 0), App.Vector(5, 5, 0)),
    Part.LineSegment(App.Vector(5, 5, 0), App.Vector(0, 5, 0)),
], False)
sketch23.addConstraint([
    Sketcher.Constraint("Coincident", 0, 2, 1, 1),
    Sketcher.Constraint("Coincident", 1, 2, 2, 1),
    Sketcher.Constraint("Coincident", 2, 2, 3, 1),
    Sketcher.Constraint("Coincident", 3, 2, 0, 1),
    Sketcher.Constraint("Vertical", 0),
    Sketcher.Constraint("Horizontal", 1),
    Sketcher.Constraint("Vertical", 2),
    Sketcher.Constraint("Horizontal", 3),
    Sketcher.Constraint("Coincident", 0, 2, -1, 1),
    Sketcher.Constraint("Equal", 3, 0),
    Sketcher.Constraint("DistanceX", 1, 1, 1, 2, 5.0),
])
sketch23.setExpression("Constraints[10]", "Params.sketch23_width")
pad23 = doc.addObject("PartDesign::Pad", "Pad022")
body26.addObject(pad23)
pad23.Profile = sketch23
pad23.setExpression("Length", "Params.pad23_length")
doc.recompute()

boolean16 = doc.addObject("PartDesign::Boolean", "Boolean015")
body26.addObject(boolean16)
boolean16.Type = "Fuse"
boolean16.addObjects([body25])
doc.recompute()

boolean17 = doc.addObject("PartDesign::Boolean", "Boolean016")
body26.addObject(boolean17)
boolean17.Type = "Fuse"
boolean17.addObjects([body24])
doc.recompute()

boolean18 = doc.addObject("PartDesign::Boolean", "Boolean017")
body26.addObject(boolean18)
boolean18.Type = "Fuse"
boolean18.addObjects([body23])
doc.recompute()

boolean19 = doc.addObject("PartDesign::Boolean", "Boolean018")
body26.addObject(boolean19)
boolean19.Type = "Fuse"
boolean19.addObjects([body22])
body27 = doc.addObject("PartDesign::Body", "Body026")
doc.recompute()

body26.Placement = App.Placement(App.Vector(0, -11, 0), App.Rotation(App.Vector(0, 0, 1), 0))
boolean20 = doc.addObject("PartDesign::Boolean", "Boolean019")
body27.addObject(boolean20)
boolean20.Type = "Fuse"
boolean20.addObjects([body26])
body28 = doc.addObject("PartDesign::Body", "Body027")

# Sketch on XY plane
sketch24 = doc.addObject("Sketcher::SketchObject", "Sketch023")
body28.addObject(sketch24)
sketch24.AttachmentSupport = (doc.getObject("XY_Plane027"), [""])
sketch24.MapMode = "FlatFace"
sketch24.addGeometry([
    Part.LineSegment(App.Vector(8.5, -7, 0), App.Vector(8.5, -10, 0)),
    Part.LineSegment(App.Vector(8.5, -10, 0), App.Vector(10.5, -10, 0)),
    Part.LineSegment(App.Vector(10.5, -10, 0), App.Vector(10.5, -7, 0)),
    Part.LineSegment(App.Vector(10.5, -7, 0), App.Vector(8.5, -7, 0)),
], False)
sketch24.addConstraint([
    Sketcher.Constraint("Coincident", 0, 2, 1, 1),
    Sketcher.Constraint("Coincident", 1, 2, 2, 1),
    Sketcher.Constraint("Coincident", 2, 2, 3, 1),
    Sketcher.Constraint("Coincident", 3, 2, 0, 1),
    Sketcher.Constraint("Vertical", 0),
    Sketcher.Constraint("Horizontal", 1),
    Sketcher.Constraint("Vertical", 2),
    Sketcher.Constraint("Horizontal", 3),
    Sketcher.Constraint("DistanceX", 1, 1, 1, 2, 2.0),
    Sketcher.Constraint("DistanceY", 0, 2, 0, 1, 3.0),
    Sketcher.Constraint("DistanceY", 0, 2, -1, 1, 10.0),
    Sketcher.Constraint("DistanceX", -1, 1, 0, 2, 8.5),
])
sketch24.setExpression("Constraints[8]", "Params.sketch24_width")
sketch24.setExpression("Constraints[9]", "Params.sketch24_height")
pad24 = doc.addObject("PartDesign::Pad", "Pad023")
body28.addObject(pad24)
pad24.Profile = sketch24
pad24.setExpression("Length", "Params.pad24_length")
body29 = doc.addObject("PartDesign::Body", "Body028")
body29.AllowCompound = True

# Sketch on XY plane
sketch25 = doc.addObject("Sketcher::SketchObject", "Sketch024")
body29.addObject(sketch25)
sketch25.AttachmentSupport = (doc.getObject("XY_Plane028"), [""])
sketch25.MapMode = "FlatFace"
sketch25.addGeometry([
    Part.LineSegment(App.Vector(0, -7.5, 0), App.Vector(0, -9.5, 0)),
    Part.LineSegment(App.Vector(0, -9.5, 0), App.Vector(19, -9.5, 0)),
    Part.LineSegment(App.Vector(19, -9.5, 0), App.Vector(19, -7.5, 0)),
    Part.LineSegment(App.Vector(19, -7.5, 0), App.Vector(0, -7.5, 0)),
], False)
sketch25.addConstraint([
    Sketcher.Constraint("Coincident", 0, 2, 1, 1),
    Sketcher.Constraint("Coincident", 1, 2, 2, 1),
    Sketcher.Constraint("Coincident", 2, 2, 3, 1),
    Sketcher.Constraint("Coincident", 3, 2, 0, 1),
    Sketcher.Constraint("Vertical", 0),
    Sketcher.Constraint("Horizontal", 1),
    Sketcher.Constraint("Vertical", 2),
    Sketcher.Constraint("Horizontal", 3),
    Sketcher.Constraint("PointOnObject", 0, 2, -2),
    Sketcher.Constraint("DistanceX", 1, 1, 1, 2, 19.0),
    Sketcher.Constraint("DistanceY", 0, 2, 0, 1, 2.0),
    Sketcher.Constraint("DistanceY", 0, 2, -1, 1, 9.5),
])
sketch25.setExpression("Constraints[9]", "Params.sketch25_width")
sketch25.setExpression("Constraints[10]", "Params.sketch25_height")
pad25 = doc.addObject("PartDesign::Pad", "Pad024")
body29.addObject(pad25)
pad25.Profile = sketch25
pad25.setExpression("Length", "Params.pad25_length")
doc.recompute()

boolean21 = doc.addObject("PartDesign::Boolean", "Boolean020")
body29.addObject(boolean21)
boolean21.Type = "Cut"
boolean21.addObjects([body28])
doc.recompute()

boolean22 = doc.addObject("PartDesign::Boolean", "Boolean021")
body29.addObject(boolean22)
boolean22.Type = "Fuse"
boolean22.addObjects([body])
doc.recompute()

boolean23 = doc.addObject("PartDesign::Boolean", "Boolean022")
body29.addObject(boolean23)
boolean23.Type = "Fuse"
boolean23.addObjects([body2])
doc.recompute()

boolean24 = doc.addObject("PartDesign::Boolean", "Boolean023")
body29.addObject(boolean24)
boolean24.Type = "Fuse"
boolean24.addObjects([body8])
doc.recompute()

boolean25 = doc.addObject("PartDesign::Boolean", "Boolean024")
body29.addObject(boolean25)
boolean25.Type = "Fuse"
boolean25.addObjects([body14])
doc.recompute()

boolean26 = doc.addObject("PartDesign::Boolean", "Boolean025")
body29.addObject(boolean26)
boolean26.Type = "Fuse"
boolean26.addObjects([body15])
doc.recompute()

boolean27 = doc.addObject("PartDesign::Boolean", "Boolean026")
body29.addObject(boolean27)
boolean27.Type = "Fuse"
boolean27.addObjects([body21])
doc.recompute()

boolean28 = doc.addObject("PartDesign::Boolean", "Boolean027")
body29.addObject(boolean28)
boolean28.Type = "Fuse"
boolean28.addObjects([body27])

doc.recompute()
